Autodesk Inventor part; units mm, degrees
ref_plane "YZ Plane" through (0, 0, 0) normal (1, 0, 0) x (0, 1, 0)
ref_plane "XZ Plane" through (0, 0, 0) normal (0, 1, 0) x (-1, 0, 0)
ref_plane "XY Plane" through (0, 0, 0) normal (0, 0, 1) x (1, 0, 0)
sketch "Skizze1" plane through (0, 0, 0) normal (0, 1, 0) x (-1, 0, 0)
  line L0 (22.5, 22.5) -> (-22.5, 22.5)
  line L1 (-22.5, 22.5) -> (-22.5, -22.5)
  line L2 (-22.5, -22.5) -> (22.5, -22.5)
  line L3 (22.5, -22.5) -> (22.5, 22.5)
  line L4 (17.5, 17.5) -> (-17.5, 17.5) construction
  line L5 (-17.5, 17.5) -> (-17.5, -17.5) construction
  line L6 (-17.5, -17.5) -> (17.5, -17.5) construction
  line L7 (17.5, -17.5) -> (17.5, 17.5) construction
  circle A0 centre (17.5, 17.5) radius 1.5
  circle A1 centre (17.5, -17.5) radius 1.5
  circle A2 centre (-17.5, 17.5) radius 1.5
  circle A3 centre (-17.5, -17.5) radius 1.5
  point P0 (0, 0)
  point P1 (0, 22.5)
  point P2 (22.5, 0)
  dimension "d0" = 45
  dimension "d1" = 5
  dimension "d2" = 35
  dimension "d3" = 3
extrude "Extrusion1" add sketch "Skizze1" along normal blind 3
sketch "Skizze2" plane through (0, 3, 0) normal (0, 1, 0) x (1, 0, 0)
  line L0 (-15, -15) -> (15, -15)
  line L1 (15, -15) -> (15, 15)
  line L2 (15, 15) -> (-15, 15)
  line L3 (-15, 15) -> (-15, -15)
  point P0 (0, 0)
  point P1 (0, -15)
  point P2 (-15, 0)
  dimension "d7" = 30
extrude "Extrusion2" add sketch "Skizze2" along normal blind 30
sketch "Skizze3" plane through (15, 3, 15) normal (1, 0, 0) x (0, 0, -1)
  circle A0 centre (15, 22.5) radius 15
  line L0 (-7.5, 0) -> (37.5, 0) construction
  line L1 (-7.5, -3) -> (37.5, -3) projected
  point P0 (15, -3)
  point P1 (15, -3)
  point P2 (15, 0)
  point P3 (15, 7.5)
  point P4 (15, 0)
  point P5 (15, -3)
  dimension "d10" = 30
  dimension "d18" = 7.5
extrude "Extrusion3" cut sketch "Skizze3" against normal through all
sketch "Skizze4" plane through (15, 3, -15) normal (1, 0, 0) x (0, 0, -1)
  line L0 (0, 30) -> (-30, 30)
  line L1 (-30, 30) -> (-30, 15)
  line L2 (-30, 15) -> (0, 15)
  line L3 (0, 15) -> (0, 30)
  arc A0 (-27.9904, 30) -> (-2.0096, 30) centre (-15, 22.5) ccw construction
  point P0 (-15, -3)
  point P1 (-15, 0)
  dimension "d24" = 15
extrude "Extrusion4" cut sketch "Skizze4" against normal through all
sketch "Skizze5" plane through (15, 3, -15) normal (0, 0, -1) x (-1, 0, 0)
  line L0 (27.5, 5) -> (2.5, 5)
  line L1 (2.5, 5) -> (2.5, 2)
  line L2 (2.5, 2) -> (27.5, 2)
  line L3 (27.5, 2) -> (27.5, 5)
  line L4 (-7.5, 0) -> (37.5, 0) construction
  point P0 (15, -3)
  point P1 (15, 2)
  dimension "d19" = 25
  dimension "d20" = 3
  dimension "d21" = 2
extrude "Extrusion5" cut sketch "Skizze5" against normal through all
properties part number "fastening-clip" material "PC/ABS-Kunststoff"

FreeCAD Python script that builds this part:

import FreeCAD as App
import Part
import Sketcher
from FreeCAD import Vector
Q = App.Units.Quantity

doc = App.newDocument("Part")
body = doc.addObject("PartDesign::Body", "Body")
body.AllowCompound = True

sketch1 = body.newObject("Sketcher::SketchObject", "Sketch")
sketch1.AttachmentSupport = (doc.getObject("XZ_Plane"), [""])
sketch1.MapMode = "FlatFace"
sketch1.addGeometry(Part.LineSegment(Vector(-22.5, -22.5, 0), Vector(-22.5, 22.5, 0)), False)
sketch1.addGeometry(Part.LineSegment(Vector(-22.5, 22.5, 0), Vector(22.5, 22.5, 0)), False)
sketch1.addGeometry(Part.LineSegment(Vector(22.5, 22.5, 0), Vector(22.5, -22.5, 0)), False)
sketch1.addGeometry(Part.LineSegment(Vector(22.5, -22.5, 0), Vector(-22.5, -22.5, 0)), False)
sketch1.addGeometry(Part.Circle(Vector(17.5, -17.5, 0), Vector(0, 0, 1), 1.5), False)
sketch1.addGeometry(Part.Circle(Vector(-17.5, -17.5, 0), Vector(0, 0, 1), 1.5), False)
sketch1.addGeometry(Part.Circle(Vector(17.5, 17.5, 0), Vector(0, 0, 1), 1.5), False)
sketch1.addGeometry(Part.Circle(Vector(-17.5, 17.5, 0), Vector(0, 0, 1), 1.5), False)
sketch1.addConstraint(Sketcher.Constraint("Coincident", 0, 2, 1, 1))
sketch1.addConstraint(Sketcher.Constraint("Coincident", 1, 2, 2, 1))
sketch1.addConstraint(Sketcher.Constraint("Coincident", 2, 2, 3, 1))
sketch1.addConstraint(Sketcher.Constraint("Coincident", 3, 2, 0, 1))
sketch1.addConstraint(Sketcher.Constraint("Vertical", 0))
sketch1.addConstraint(Sketcher.Constraint("Horizontal", 1))
sketch1.addConstraint(Sketcher.Constraint("Vertical", 2))
sketch1.addConstraint(Sketcher.Constraint("Horizontal", 3))
sketch1.addConstraint(Sketcher.Constraint("Equal", 4, 5))
sketch1.addConstraint(Sketcher.Constraint("Equal", 5, 6))
sketch1.addConstraint(Sketcher.Constraint("Equal", 6, 7))
sketch1.addConstraint(Sketcher.Constraint("Symmetric", 5, 3, 6, 3, -1, 1))
sketch1.addConstraint(Sketcher.Constraint("Symmetric", 4, 3, 7, 3, -1, 1))
sketch1.addConstraint(Sketcher.Constraint("Symmetric", 0, 2, 2, 2, -1, 1))
sketch1.addConstraint(Sketcher.Constraint("Symmetric", 4, 3, 5, 3, -2))
sketch1.addConstraint(Sketcher.Constraint("Equal", 3, 0))
sketch1.addConstraint(Sketcher.Constraint("Diameter", 4, Q("3 mm")))
sketch1.addConstraint(Sketcher.Constraint("DistanceX", 1, 1, 1, 2, Q("45 mm")))
sketch1.addConstraint(Sketcher.Constraint("DistanceX", 5, 3, 4, 3, Q("35 mm")))
sketch1.addConstraint(Sketcher.Constraint("DistanceY", 4, 3, 6, 3, Q("35 mm")))
pad1 = body.newObject("PartDesign::Pad", "Pad")
pad1.Profile = sketch1
pad1.Length = 3
pad1.Reversed = True

sketch2 = body.newObject("Sketcher::SketchObject", "Sketch001")
sketch2.AttachmentSupport = (doc.getObject("XZ_Plane"), [""])
sketch2.MapMode = "FlatFace"
sketch2.AttachmentOffset = App.Placement(Vector(0, 0, -3), App.Rotation())
sketch2.addGeometry(Part.LineSegment(Vector(-15, -15, 0), Vector(-15, 15, 0)), False)
sketch2.addGeometry(Part.LineSegment(Vector(-15, 15, 0), Vector(15, 15, 0)), False)
sketch2.addGeometry(Part.LineSegment(Vector(15, 15, 0), Vector(15, -15, 0)), False)
sketch2.addGeometry(Part.LineSegment(Vector(15, -15, 0), Vector(-15, -15, 0)), False)
sketch2.addConstraint(Sketcher.Constraint("Coincident", 0, 2, 1, 1))
sketch2.addConstraint(Sketcher.Constraint("Coincident", 1, 2, 2, 1))
sketch2.addConstraint(Sketcher.Constraint("Coincident", 2, 2, 3, 1))
sketch2.addConstraint(Sketcher.Constraint("Coincident", 3, 2, 0, 1))
sketch2.addConstraint(Sketcher.Constraint("Vertical", 0))
sketch2.addConstraint(Sketcher.Constraint("Horizontal", 1))
sketch2.addConstraint(Sketcher.Constraint("Vertical", 2))
sketch2.addConstraint(Sketcher.Constraint("Horizontal", 3))
sketch2.addConstraint(Sketcher.Constraint("Symmetric", 0, 2, 2, 2, -1, 1))
sketch2.addConstraint(Sketcher.Constraint("Equal", 3, 0))
sketch2.addConstraint(Sketcher.Constraint("DistanceX", 1, 1, 1, 2, Q("30 mm")))
pad2 = body.newObject("PartDesign::Pad", "Pad001")
pad2.Profile = sketch2
pad2.Length = 30
pad2.Reversed = True

sketch3 = body.newObject("Sketcher::SketchObject", "Sketch002")
sketch3.AttachmentSupport = (doc.getObject("YZ_Plane"), [""])
sketch3.MapMode = "FlatFace"
sketch3.AttachmentOffset = App.Placement(Vector(0, 0, 15), App.Rotation())
sketch3.addGeometry(Part.Circle(Vector(25.5, 0, 0), Vector(0, 0, 1), 15), False)
sketch3.addConstraint(Sketcher.Constraint("PointOnObject", 0, 3, -1))
sketch3.addConstraint(Sketcher.Constraint("Diameter", 0, Q("30 mm")))
sketch3.addConstraint(Sketcher.Constraint("DistanceX", -1, 1, 0, 3, Q("25.5 mm")))
pocket1 = body.newObject("PartDesign::Pocket", "Pocket")
pocket1.Profile = sketch3
pocket1.Type = "ThroughAll"

sketch4 = body.newObject("Sketcher::SketchObject", "Sketch003")
sketch4.AttachmentSupport = (doc.getObject("YZ_Plane"), [""])
sketch4.MapMode = "FlatFace"
sketch4.AttachmentOffset = App.Placement(Vector(0, 0, 15), App.Rotation())
sketch4.addGeometry(Part.LineSegment(Vector(18, -15, 0), Vector(33, -15, 0)), False)
sketch4.addGeometry(Part.LineSegment(Vector(33, -15, 0), Vector(33, 15, 0)), False)
sketch4.addGeometry(Part.LineSegment(Vector(33, 15, 0), Vector(18, 15, 0)), False)
sketch4.addGeometry(Part.LineSegment(Vector(18, 15, 0), Vector(18, -15, 0)), False)
sketch4.addConstraint(Sketcher.Constraint("Coincident", 0, 2, 1, 1))
sketch4.addConstraint(Sketcher.Constraint("Coincident", 1, 2, 2, 1))
sketch4.addConstraint(Sketcher.Constraint("Coincident", 2, 2, 3, 1))
sketch4.addConstraint(Sketcher.Constraint("Coincident", 3, 2, 0, 1))
sketch4.addConstraint(Sketcher.Constraint("Horizontal", 0))
sketch4.addConstraint(Sketcher.Constraint("Vertical", 1))
sketch4.addConstraint(Sketcher.Constraint("Horizontal", 2))
sketch4.addConstraint(Sketcher.Constraint("Vertical", 3))
sketch4.addConstraint(Sketcher.Constraint("DistanceX", 0, 1, 0, 2, Q("15 mm")))
sketch4.addConstraint(Sketcher.Constraint("DistanceY", 0, 2, -1, 1, Q("15 mm")))
sketch4.addConstraint(Sketcher.Constraint("DistanceY", -1, 1, 1, 2, Q("15 mm")))
sketch4.addConstraint(Sketcher.Constraint("DistanceX", -1, 1, 0, 2, Q("33 mm")))
pocket2 = body.newObject("PartDesign::Pocket", "Pocket001")
pocket2.Profile = sketch4
pocket2.Type = "ThroughAll"

sketch5 = body.newObject("Sketcher::SketchObject", "Sketch004")
sketch5.AttachmentSupport = (doc.getObject("XY_Plane"), [""])
sketch5.MapMode = "FlatFace"
sketch5.AttachmentOffset = App.Placement(Vector(0, 0, -15), App.Rotation())
sketch5.addGeometry(Part.LineSegment(Vector(-12.5, 5, 0), Vector(-12.5, 8, 0)), False)
sketch5.addGeometry(Part.LineSegment(Vector(-12.5, 8, 0), Vector(12.5, 8, 0)), False)
sketch5.addGeometry(Part.LineSegment(Vector(12.5, 8, 0), Vector(12.5, 5, 0)), False)
sketch5.addGeometry(Part.LineSegment(Vector(12.5, 5, 0), Vector(-12.5, 5, 0)), False)
sketch5.addConstraint(Sketcher.Constraint("Coincident", 0, 2, 1, 1))
sketch5.addConstraint(Sketcher.Constraint("Coincident", 1, 2, 2, 1))
sketch5.addConstraint(Sketcher.Constraint("Coincident", 2, 2, 3, 1))
sketch5.addConstraint(Sketcher.Constraint("Coincident", 3, 2, 0, 1))
sketch5.addConstraint(Sketcher.Constraint("Vertical", 0))
sketch5.addConstraint(Sketcher.Constraint("Horizontal", 1))
sketch5.addConstraint(Sketcher.Constraint("Vertical", 2))
sketch5.addConstraint(Sketcher.Constraint("Horizontal", 3))
sketch5.addConstraint(Sketcher.Constraint("DistanceX", 1, 1, 1, 2, Q("25 mm")))
sketch5.addConstraint(Sketcher.Constraint("DistanceY", 0, 1, 0, 2, Q("3 mm")))
sketch5.addConstraint(Sketcher.Constraint("DistanceY", -1, 1, 0, 2, Q("8 mm")))
sketch5.addConstraint(Sketcher.Constraint("DistanceX", 0, 2, -1, 1, Q("12.5 mm")))
pocket3 = body.newObject("PartDesign::Pocket", "Pocket002")
pocket3.Profile = sketch5
pocket3.Type = "ThroughAll"
pocket3.Reversed = True

doc.recompute()
